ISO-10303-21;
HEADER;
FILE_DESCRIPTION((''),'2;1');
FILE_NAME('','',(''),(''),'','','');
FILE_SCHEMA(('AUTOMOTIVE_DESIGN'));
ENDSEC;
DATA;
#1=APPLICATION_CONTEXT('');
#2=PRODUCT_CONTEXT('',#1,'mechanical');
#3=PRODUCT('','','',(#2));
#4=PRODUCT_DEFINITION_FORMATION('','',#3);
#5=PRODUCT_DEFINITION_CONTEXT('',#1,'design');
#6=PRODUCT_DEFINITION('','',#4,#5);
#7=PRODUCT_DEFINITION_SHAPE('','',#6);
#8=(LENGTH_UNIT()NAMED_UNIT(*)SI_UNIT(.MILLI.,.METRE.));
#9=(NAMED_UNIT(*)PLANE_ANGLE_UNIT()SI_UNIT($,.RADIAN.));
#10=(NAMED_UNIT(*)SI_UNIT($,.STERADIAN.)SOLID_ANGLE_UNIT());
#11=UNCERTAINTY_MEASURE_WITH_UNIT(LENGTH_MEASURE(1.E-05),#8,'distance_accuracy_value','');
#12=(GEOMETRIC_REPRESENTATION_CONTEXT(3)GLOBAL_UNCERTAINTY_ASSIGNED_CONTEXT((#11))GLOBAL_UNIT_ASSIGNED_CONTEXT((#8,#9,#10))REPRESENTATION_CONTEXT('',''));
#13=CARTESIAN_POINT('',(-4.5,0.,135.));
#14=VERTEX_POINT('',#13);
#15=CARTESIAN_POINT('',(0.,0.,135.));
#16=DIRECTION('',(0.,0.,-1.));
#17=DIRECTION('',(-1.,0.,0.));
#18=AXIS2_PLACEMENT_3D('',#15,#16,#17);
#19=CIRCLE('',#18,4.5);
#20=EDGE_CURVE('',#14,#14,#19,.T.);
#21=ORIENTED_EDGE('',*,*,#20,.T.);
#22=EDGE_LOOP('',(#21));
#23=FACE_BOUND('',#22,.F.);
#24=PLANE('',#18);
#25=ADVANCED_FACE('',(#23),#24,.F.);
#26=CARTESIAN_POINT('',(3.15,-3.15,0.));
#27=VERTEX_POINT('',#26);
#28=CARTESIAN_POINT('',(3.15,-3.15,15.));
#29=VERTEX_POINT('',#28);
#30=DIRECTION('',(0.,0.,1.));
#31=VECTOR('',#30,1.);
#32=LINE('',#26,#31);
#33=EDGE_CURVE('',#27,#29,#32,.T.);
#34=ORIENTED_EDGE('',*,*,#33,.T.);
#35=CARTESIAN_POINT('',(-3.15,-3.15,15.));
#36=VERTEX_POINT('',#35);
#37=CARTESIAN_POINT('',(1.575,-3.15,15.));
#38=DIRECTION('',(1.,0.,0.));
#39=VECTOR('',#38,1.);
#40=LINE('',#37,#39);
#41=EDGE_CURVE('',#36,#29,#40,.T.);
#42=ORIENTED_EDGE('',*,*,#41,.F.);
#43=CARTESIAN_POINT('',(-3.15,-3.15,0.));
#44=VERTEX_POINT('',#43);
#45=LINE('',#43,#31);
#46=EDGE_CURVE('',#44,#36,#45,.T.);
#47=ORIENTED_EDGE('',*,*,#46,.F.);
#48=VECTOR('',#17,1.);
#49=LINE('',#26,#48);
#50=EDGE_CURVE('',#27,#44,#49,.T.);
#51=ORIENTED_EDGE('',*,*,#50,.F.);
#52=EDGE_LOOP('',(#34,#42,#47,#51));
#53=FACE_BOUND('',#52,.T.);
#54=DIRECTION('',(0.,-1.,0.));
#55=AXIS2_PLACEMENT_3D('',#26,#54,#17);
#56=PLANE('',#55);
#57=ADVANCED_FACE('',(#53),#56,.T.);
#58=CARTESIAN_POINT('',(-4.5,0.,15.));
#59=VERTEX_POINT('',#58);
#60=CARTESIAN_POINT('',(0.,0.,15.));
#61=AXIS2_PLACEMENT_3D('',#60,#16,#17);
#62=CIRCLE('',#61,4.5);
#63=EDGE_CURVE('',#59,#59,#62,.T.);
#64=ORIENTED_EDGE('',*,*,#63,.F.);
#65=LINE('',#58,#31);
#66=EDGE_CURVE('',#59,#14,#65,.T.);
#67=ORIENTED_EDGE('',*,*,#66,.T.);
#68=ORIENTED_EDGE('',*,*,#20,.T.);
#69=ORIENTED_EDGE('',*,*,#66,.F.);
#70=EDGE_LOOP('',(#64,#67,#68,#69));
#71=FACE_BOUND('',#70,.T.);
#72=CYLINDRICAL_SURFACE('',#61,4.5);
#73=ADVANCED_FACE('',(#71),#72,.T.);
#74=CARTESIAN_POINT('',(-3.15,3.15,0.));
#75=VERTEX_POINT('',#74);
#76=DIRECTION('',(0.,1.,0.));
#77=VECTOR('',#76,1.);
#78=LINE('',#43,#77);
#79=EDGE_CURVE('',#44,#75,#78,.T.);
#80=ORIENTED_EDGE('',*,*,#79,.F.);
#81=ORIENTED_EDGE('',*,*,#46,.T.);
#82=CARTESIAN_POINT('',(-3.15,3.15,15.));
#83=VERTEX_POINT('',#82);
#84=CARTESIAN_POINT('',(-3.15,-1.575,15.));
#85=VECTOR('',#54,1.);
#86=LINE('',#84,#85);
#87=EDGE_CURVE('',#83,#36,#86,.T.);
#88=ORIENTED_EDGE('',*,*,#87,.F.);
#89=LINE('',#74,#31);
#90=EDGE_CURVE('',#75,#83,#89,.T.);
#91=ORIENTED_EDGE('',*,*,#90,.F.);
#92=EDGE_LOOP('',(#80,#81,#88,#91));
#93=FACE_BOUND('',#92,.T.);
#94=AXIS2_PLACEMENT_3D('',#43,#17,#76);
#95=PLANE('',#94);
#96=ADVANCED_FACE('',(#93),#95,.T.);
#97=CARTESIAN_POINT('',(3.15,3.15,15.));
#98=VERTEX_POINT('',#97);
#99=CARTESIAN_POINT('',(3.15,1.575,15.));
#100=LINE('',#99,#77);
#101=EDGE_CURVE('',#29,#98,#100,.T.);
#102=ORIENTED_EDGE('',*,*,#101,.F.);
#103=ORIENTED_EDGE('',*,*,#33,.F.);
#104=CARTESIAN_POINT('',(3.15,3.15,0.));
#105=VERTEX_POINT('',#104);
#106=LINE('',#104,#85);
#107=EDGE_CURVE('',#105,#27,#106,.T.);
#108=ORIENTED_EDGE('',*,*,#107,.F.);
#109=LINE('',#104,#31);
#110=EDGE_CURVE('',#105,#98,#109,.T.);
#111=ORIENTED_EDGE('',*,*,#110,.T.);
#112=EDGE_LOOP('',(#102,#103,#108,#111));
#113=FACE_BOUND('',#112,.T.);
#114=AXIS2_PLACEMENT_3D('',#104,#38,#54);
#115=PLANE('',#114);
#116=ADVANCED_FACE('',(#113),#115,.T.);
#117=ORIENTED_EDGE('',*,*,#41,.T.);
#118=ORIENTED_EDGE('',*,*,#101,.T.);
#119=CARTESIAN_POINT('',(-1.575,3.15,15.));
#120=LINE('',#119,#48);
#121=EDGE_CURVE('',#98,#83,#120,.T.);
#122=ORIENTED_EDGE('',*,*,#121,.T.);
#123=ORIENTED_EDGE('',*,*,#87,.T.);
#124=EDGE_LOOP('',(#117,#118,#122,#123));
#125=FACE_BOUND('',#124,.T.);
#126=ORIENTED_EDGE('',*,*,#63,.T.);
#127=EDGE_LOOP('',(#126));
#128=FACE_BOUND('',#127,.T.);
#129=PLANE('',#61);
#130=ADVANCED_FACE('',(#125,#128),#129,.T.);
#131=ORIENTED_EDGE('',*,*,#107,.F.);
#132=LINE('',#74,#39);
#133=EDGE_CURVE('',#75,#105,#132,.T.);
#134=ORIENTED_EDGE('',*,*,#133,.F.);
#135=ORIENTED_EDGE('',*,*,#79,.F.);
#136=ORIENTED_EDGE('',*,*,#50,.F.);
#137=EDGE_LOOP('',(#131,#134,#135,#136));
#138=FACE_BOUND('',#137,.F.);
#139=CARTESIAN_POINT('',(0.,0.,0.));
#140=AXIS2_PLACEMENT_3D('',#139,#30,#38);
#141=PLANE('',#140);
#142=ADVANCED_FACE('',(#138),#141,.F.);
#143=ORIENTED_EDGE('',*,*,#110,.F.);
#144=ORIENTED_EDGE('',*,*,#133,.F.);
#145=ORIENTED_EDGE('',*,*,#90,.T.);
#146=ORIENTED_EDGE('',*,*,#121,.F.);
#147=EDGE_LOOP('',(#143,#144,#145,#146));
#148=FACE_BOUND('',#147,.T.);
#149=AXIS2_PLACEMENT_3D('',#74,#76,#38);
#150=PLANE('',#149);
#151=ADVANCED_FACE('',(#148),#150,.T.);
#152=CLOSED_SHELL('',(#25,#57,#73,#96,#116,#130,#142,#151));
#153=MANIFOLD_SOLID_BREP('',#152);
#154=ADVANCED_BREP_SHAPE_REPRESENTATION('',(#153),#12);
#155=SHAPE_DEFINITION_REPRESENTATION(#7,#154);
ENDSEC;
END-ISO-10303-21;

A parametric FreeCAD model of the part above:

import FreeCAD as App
import Part
import Sketcher
Q = App.Units.Quantity


def add_polygon(sketch, points):
    """Adds a closed chain of lines whose ends are joined by coincident constraints."""
    first, n = sketch.GeometryCount, len(points)
    for a, b in zip(points, points[1:] + points[:1]):
        sketch.addGeometry(Part.LineSegment(App.Vector(*a, 0), App.Vector(*b, 0)), False)
    for i in range(n):
        sketch.addConstraint(Sketcher.Constraint("Coincident", first + i, 2, first + (i + 1) % n, 1))

doc = App.newDocument("Part")
body = doc.addObject("PartDesign::Body", "Body")

# Sketch on XY plane
sketch1 = doc.addObject("Sketcher::SketchObject", "Sketch")
body.addObject(sketch1)
sketch1.AttachmentSupport = (doc.XY_Plane, [""])
sketch1.MapMode = "FlatFace"
add_polygon(sketch1, [(-3.15, -3.15), (3.15, -3.15), (3.15, 3.15), (-3.15, 3.15)])  # lines 0-3
sketch1.addConstraint([
    Sketcher.Constraint("Horizontal", 0),
    Sketcher.Constraint("Vertical", 1),
    Sketcher.Constraint("Horizontal", 2),
    Sketcher.Constraint("Vertical", 3),
    Sketcher.Constraint("Symmetric", 0, 2, 2, 2, -1, 1),
    Sketcher.Constraint("Equal", 2, 1),
    Sketcher.Constraint("DistanceX", 0, 1, 0, 2, Q("6.3 mm")),
])
pad1 = doc.addObject("PartDesign::Pad", "Pad")
body.addObject(pad1)
pad1.Profile = sketch1
pad1.Length = 135

# Sketch on XY plane
sketch2 = doc.addObject("Sketcher::SketchObject", "Sketch001")
body.addObject(sketch2)
sketch2.AttachmentSupport = (doc.XY_Plane, [""])
sketch2.MapMode = "FlatFace"
sketch2.AttachmentOffset = App.Placement(App.Vector(0, 0, 15), App.Rotation())
sketch2.addGeometry(Part.Circle(App.Vector(0, 0, 0), App.Vector(0, 0, 1), 4.5), False)
sketch2.addConstraint([
    Sketcher.Constraint("Coincident", 0, 3, -1, 1),
    Sketcher.Constraint("Diameter", 0, Q("9 mm")),
])
pad2 = doc.addObject("PartDesign::Pad", "Pad001")
body.addObject(pad2)
pad2.Profile = sketch2
pad2.Length = 120

doc.recompute()
